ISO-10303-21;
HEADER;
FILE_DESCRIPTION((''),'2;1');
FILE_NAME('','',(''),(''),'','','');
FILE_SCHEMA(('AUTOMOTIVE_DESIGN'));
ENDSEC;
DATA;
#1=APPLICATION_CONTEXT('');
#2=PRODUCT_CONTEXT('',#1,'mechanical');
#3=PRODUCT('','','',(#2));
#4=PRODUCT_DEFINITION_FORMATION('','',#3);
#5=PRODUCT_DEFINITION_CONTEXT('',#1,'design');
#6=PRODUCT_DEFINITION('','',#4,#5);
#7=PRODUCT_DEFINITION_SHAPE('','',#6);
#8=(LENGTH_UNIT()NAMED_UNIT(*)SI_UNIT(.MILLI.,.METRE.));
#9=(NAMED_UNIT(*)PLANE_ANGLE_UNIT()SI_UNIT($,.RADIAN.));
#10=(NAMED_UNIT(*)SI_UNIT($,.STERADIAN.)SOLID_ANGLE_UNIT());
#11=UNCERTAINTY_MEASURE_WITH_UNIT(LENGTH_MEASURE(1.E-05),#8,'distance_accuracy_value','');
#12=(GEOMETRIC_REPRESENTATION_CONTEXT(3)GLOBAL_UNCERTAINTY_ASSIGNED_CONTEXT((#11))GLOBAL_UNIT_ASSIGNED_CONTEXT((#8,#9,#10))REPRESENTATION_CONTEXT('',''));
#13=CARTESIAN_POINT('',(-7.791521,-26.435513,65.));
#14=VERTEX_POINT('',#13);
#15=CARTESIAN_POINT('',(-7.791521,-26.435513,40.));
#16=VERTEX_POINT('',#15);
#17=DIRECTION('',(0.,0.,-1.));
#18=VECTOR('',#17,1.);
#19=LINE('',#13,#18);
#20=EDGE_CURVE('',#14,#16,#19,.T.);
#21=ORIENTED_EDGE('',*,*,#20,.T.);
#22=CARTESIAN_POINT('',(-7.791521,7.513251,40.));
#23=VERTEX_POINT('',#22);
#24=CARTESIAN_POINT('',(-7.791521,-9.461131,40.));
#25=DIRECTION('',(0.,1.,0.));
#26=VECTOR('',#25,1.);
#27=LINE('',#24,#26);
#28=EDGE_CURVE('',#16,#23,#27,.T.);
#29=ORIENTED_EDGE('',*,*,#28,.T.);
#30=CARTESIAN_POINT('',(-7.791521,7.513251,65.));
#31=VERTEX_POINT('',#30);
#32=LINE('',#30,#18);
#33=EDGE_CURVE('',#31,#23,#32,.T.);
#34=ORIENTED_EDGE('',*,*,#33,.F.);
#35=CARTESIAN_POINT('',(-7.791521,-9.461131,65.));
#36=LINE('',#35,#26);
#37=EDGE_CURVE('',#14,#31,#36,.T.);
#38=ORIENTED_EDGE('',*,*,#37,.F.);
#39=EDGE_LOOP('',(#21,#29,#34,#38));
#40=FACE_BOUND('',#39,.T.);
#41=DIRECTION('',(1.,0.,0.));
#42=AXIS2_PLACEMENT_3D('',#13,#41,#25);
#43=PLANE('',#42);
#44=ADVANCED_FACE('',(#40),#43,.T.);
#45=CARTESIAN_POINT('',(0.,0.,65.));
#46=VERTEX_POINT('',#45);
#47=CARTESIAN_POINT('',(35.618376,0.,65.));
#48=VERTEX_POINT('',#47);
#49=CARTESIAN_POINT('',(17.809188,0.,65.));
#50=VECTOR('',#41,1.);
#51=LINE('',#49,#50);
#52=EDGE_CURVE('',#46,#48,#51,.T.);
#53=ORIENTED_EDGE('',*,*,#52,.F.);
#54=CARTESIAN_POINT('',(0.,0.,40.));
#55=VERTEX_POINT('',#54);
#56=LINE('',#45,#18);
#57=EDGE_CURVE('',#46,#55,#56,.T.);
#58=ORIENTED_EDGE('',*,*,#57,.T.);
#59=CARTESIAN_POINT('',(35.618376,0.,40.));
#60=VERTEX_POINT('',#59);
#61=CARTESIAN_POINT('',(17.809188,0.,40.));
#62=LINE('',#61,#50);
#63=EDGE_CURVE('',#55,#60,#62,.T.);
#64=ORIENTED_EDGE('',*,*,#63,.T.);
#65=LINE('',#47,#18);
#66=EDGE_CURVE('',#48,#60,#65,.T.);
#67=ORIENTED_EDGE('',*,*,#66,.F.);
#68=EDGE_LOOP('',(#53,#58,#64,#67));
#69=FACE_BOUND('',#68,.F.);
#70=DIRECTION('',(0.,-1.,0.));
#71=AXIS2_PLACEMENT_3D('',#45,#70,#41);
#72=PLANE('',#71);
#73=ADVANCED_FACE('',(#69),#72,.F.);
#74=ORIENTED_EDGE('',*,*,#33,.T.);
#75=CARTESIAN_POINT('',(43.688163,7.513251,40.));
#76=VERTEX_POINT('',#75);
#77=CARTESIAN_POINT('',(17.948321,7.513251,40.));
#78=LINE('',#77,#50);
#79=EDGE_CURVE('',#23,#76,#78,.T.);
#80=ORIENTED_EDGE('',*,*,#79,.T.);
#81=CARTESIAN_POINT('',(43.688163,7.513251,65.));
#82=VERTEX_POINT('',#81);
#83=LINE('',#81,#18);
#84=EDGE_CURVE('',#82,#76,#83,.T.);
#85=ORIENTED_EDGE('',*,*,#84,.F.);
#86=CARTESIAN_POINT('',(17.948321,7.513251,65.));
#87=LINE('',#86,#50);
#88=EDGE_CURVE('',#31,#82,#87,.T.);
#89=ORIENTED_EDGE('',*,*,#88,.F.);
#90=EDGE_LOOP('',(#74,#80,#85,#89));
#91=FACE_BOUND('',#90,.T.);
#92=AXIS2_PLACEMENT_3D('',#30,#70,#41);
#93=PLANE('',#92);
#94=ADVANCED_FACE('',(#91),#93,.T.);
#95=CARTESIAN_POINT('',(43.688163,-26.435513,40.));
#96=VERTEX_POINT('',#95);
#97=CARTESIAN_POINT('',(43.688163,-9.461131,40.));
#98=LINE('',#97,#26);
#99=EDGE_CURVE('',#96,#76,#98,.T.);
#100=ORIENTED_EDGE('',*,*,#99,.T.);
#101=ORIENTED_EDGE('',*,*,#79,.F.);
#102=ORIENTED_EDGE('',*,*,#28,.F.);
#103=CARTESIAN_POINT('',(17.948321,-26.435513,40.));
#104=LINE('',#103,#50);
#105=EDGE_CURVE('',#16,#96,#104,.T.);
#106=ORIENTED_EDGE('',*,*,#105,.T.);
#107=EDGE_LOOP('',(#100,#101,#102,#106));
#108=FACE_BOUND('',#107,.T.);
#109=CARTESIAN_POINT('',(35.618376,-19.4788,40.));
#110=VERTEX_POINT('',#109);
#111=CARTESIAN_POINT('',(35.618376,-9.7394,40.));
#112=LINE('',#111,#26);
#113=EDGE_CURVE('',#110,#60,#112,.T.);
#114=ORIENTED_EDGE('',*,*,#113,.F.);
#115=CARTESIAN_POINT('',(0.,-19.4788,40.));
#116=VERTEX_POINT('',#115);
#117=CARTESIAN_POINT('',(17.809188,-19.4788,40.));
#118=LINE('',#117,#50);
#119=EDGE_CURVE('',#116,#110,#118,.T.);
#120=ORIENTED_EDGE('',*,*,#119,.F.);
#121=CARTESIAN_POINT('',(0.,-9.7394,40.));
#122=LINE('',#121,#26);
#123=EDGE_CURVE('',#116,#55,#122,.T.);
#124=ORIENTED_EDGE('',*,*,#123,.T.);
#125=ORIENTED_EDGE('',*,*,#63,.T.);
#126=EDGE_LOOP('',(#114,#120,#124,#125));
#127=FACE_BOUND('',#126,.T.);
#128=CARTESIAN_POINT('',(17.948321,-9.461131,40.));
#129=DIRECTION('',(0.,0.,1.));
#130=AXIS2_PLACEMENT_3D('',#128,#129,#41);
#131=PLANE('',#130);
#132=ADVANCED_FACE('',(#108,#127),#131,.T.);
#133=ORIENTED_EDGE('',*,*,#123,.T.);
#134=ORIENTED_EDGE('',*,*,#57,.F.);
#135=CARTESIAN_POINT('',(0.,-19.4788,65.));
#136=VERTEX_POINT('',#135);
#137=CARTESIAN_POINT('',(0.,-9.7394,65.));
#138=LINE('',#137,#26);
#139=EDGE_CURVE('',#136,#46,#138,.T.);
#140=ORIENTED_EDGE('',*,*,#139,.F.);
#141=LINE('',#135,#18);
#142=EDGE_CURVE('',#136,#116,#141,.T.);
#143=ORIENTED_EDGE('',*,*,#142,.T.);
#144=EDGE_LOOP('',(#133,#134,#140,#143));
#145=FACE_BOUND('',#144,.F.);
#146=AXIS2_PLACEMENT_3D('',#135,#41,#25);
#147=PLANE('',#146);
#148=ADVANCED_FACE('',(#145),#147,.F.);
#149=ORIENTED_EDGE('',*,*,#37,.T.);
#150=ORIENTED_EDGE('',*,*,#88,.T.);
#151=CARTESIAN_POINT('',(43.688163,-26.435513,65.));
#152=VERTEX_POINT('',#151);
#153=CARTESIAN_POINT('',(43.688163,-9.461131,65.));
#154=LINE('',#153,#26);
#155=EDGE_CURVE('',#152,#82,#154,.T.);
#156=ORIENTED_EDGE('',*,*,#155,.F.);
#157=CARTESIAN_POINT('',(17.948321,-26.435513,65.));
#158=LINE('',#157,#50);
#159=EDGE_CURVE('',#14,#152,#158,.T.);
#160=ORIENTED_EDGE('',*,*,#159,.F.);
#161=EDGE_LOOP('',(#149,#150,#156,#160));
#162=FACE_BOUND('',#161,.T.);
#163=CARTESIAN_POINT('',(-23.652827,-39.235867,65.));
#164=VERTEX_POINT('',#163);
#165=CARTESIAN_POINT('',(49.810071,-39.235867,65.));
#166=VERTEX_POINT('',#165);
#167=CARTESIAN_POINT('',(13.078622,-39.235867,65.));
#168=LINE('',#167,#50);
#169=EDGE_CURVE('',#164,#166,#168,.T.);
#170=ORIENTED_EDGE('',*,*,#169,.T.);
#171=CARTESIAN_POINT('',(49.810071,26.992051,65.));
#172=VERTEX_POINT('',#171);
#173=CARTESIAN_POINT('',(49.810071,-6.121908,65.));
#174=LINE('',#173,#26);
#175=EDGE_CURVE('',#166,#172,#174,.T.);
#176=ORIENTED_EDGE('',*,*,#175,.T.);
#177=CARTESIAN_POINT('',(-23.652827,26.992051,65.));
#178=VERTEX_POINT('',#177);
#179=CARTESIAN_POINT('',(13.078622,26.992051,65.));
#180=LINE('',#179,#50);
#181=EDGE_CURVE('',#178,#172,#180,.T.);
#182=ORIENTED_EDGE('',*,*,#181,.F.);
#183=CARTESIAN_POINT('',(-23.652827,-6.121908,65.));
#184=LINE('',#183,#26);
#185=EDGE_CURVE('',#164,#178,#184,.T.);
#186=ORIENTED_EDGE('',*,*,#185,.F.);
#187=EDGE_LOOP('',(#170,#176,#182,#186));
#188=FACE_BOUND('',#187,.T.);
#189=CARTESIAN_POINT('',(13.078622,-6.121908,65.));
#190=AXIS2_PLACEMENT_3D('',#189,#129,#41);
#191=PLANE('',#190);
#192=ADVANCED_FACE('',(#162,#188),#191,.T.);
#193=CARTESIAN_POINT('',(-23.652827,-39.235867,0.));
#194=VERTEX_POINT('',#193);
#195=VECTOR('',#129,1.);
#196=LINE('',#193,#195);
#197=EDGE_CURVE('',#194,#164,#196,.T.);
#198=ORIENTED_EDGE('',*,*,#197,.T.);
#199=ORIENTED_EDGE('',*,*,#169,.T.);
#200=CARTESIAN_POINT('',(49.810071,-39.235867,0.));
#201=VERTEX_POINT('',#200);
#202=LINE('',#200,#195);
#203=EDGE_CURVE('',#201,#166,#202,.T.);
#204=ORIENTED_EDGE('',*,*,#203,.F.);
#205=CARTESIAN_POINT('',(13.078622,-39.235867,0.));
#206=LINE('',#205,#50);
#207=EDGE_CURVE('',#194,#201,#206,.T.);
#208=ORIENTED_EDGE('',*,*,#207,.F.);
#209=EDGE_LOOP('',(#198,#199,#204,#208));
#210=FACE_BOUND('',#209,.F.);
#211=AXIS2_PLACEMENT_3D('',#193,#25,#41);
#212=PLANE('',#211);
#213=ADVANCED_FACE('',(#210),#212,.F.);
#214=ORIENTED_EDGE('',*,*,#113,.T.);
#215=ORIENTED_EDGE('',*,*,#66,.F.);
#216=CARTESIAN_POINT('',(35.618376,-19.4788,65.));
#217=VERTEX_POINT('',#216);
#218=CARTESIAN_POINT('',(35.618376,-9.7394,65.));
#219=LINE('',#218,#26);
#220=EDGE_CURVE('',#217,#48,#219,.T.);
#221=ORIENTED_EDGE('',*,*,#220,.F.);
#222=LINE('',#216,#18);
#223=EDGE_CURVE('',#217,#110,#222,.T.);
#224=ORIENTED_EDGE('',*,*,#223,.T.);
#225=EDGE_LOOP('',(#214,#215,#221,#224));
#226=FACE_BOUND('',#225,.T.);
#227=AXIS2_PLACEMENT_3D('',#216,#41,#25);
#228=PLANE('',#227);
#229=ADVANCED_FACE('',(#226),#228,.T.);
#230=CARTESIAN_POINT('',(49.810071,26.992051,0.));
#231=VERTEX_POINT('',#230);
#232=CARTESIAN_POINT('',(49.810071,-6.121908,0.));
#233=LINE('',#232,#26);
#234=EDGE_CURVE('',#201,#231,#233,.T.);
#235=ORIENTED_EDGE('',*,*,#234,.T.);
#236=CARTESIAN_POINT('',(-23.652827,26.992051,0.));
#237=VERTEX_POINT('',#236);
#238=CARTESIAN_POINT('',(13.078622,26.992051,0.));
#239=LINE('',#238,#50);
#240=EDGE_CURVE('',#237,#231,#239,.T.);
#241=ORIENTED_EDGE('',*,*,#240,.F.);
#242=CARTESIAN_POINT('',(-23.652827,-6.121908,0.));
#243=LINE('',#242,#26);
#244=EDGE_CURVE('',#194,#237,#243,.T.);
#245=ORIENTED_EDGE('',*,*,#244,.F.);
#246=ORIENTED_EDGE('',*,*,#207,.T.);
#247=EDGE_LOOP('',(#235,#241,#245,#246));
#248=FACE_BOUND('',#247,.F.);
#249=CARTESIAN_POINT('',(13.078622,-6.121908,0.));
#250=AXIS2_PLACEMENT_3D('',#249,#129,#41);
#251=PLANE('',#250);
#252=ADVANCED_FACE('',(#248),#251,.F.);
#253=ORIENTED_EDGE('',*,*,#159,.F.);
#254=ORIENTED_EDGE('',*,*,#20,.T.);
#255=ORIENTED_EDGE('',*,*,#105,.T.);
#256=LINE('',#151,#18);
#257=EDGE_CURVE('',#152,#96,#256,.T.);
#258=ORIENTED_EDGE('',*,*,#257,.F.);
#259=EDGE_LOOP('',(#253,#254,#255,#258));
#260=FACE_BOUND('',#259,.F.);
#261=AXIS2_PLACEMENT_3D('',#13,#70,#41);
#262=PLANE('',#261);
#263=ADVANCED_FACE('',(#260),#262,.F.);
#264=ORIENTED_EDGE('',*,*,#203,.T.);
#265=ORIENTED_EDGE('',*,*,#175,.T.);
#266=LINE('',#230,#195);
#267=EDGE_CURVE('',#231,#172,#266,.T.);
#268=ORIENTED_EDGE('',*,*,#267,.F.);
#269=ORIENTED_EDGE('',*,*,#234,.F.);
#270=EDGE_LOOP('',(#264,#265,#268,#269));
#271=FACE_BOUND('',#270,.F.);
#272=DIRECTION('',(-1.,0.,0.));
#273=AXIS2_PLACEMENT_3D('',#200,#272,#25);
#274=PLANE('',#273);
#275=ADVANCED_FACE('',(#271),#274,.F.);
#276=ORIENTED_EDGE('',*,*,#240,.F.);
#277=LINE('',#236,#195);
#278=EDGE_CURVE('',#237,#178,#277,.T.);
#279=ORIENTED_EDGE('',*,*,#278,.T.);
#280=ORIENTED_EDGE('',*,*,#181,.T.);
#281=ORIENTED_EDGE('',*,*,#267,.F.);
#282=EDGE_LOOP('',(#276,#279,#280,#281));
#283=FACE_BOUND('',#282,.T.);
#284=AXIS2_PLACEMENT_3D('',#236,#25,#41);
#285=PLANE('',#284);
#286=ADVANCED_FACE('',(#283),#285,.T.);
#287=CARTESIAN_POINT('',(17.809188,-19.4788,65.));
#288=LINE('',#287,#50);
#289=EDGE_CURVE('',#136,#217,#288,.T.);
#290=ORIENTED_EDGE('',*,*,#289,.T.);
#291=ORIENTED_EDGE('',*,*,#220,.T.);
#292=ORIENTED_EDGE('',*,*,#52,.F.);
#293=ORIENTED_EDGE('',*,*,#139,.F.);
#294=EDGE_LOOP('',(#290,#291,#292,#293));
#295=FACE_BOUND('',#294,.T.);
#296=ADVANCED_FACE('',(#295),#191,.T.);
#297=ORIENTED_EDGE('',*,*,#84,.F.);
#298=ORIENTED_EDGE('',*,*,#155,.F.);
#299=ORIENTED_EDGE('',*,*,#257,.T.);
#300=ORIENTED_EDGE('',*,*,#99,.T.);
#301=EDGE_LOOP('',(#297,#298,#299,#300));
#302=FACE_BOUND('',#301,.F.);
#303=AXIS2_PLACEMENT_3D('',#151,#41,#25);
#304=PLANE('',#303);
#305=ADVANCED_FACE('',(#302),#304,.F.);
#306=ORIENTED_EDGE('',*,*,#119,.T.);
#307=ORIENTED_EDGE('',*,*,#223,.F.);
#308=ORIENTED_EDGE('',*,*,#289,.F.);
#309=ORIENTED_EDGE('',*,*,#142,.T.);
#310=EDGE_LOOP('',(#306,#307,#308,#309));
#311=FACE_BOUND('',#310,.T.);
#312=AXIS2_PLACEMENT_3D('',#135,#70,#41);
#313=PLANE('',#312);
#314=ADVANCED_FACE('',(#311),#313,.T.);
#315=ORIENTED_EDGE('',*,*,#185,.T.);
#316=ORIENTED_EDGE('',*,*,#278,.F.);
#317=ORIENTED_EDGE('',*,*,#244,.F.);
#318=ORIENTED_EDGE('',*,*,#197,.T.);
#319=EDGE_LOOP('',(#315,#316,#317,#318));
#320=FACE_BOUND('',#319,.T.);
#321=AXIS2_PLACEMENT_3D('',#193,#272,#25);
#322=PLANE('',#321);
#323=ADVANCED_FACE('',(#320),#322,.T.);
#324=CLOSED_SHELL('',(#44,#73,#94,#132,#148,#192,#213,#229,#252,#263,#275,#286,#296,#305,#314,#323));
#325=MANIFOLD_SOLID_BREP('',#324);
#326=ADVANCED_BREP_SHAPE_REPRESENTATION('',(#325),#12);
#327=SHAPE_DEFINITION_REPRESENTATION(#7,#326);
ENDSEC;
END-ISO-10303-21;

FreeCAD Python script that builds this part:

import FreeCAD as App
import Part
import Sketcher

V = App.Vector


def add_polygon(sketch, points):
    """Adds a closed chain of lines whose ends are joined by coincident constraints."""
    first, n = sketch.GeometryCount, len(points)
    for a, b in zip(points, points[1:] + points[:1]):
        sketch.addGeometry(Part.LineSegment(App.Vector(*a, 0), App.Vector(*b, 0)), False)
    for i in range(n):
        sketch.addConstraint(Sketcher.Constraint("Coincident", first + i, 2, first + (i + 1) % n, 1))

doc = App.newDocument("Part")
body = doc.addObject("PartDesign::Body", "Body")

sketch1 = body.newObject("Sketcher::SketchObject", "Sketch")
sketch1.AttachmentSupport = (doc.getObject("XY_Plane"), [""])
sketch1.MapMode = "FlatFace"
add_polygon(sketch1, [(-23.652827, 26.992051), (-23.652827, -39.235867), (49.810071, -39.235867), (49.810071, 26.992051)])
sketch1.addConstraint([
    Sketcher.Constraint("Vertical", 0),
    Sketcher.Constraint("Horizontal", 1),
    Sketcher.Constraint("Vertical", 2),
    Sketcher.Constraint("Horizontal", 3),
    Sketcher.Constraint("DistanceY", 0, 2, 0, 1, 66.227919),
    Sketcher.Constraint("DistanceX", 1, 1, 1, 2, 73.462898),
    Sketcher.Constraint("DistanceX", -1, 1, 1, 2, 49.810071),
    Sketcher.Constraint("DistanceY", -1, 1, 2, 2, 26.992051),
])
pad1 = body.newObject("PartDesign::Pad", "Pad")
pad1.Profile = sketch1
pad1.Length = 65

sketch2 = body.newObject("Sketcher::SketchObject", "Sketch001")
sketch2.AttachmentSupport = (doc.getObject("XY_Plane"), [""])
sketch2.MapMode = "FlatFace"
sketch2.AttachmentOffset = App.Placement(V(0, 0, 65), App.Rotation())
add_polygon(sketch2, [(-7.791521, 7.513251), (-7.791521, -26.435513), (43.688163, -26.435513), (43.688163, 7.513251)])
add_polygon(sketch2, [(35.618376, -19.4788), (0, -19.4788), (0, 0), (35.618376, 0)])
sketch2.addConstraint([
    Sketcher.Constraint("Vertical", 0),
    Sketcher.Constraint("Horizontal", 1),
    Sketcher.Constraint("Vertical", 2),
    Sketcher.Constraint("Horizontal", 3),
    Sketcher.Constraint("Horizontal", 4),
    Sketcher.Constraint("Vertical", 5),
    Sketcher.Constraint("Horizontal", 6),
    Sketcher.Constraint("Vertical", 7),
    Sketcher.Constraint("Coincident", 5, 2, -1, 1),
    Sketcher.Constraint("DistanceY", 5, 1, 5, 2, 19.4788),
    Sketcher.Constraint("DistanceX", 1, 1, 1, 2, 51.479684),
    Sketcher.Constraint("DistanceX", 4, 2, 4, 1, 35.618376),
    Sketcher.Constraint("DistanceY", 0, 2, 0, 1, 33.948764),
    Sketcher.Constraint("DistanceX", 0, 2, -1, 1, 7.791521),
    Sketcher.Constraint("DistanceY", -1, 1, 2, 2, 7.513251),
])
pocket1 = body.newObject("PartDesign::Pocket", "Pocket")
pocket1.Profile = sketch2
pocket1.Length = 25

doc.recompute()
